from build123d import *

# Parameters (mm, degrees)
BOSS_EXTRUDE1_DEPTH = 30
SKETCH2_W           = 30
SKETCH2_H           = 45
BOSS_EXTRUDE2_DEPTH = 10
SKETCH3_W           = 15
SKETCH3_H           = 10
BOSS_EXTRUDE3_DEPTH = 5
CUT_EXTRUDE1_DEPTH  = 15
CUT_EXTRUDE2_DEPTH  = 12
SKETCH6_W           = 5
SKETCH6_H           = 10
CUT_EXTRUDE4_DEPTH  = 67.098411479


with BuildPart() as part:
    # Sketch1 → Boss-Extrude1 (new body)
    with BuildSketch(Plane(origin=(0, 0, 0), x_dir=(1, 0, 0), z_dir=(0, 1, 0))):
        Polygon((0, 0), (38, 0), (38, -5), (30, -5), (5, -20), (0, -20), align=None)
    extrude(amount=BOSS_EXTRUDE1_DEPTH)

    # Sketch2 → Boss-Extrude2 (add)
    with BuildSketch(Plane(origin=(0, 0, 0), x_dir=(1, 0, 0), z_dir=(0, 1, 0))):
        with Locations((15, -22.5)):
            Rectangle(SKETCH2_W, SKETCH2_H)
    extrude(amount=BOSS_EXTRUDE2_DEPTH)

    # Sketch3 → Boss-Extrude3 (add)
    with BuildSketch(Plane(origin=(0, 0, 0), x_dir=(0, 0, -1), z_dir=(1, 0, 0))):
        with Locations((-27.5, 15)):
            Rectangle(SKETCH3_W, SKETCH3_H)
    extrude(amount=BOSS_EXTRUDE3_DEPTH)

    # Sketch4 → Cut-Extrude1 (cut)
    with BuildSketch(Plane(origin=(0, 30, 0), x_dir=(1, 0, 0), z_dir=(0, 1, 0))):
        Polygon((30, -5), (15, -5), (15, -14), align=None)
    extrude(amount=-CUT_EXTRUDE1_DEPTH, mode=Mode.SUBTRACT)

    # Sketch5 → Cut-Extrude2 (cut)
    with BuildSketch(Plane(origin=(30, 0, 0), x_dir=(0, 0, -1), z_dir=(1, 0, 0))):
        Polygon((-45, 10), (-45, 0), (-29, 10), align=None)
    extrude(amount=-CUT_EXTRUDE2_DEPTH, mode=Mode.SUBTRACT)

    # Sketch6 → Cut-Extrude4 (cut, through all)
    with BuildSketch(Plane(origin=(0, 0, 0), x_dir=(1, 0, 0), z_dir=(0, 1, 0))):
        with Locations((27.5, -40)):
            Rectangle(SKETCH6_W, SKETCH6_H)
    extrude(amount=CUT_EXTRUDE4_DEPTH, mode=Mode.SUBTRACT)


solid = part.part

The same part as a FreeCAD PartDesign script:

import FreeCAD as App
import Part
import Sketcher
from FreeCAD import Vector
Q = App.Units.Quantity

doc = App.newDocument("Part")
body = doc.addObject("PartDesign::Body", "Body")

# Sketch on XZ plane
sketch1 = body.newObject("Sketcher::SketchObject", "Sketch")
sketch1.AttachmentSupport = (doc.getObject("XZ_Plane"), [""])
sketch1.MapMode = "FlatFace"
sketch1.addGeometry([
    Part.LineSegment(Vector(38, 0, 0), Vector(0, 0, 0)),  # 0
    Part.LineSegment(Vector(0, 0, 0), Vector(0, 20, 0)),  # 1
    Part.LineSegment(Vector(0, 20, 0), Vector(5, 20, 0)),  # 2
    Part.LineSegment(Vector(5, 20, 0), Vector(30, 5, 0)),  # 3
    Part.LineSegment(Vector(30, 5, 0), Vector(38, 5, 0)),  # 4
    Part.LineSegment(Vector(38, 5, 0), Vector(38, 0, 0)),  # 5
], False)
sketch1.addConstraint([
    Sketcher.Constraint("Coincident", 0, 2, 1, 1),
    Sketcher.Constraint("Coincident", 1, 2, 2, 1),
    Sketcher.Constraint("Coincident", 2, 2, 3, 1),
    Sketcher.Constraint("Coincident", 3, 2, 4, 1),
    Sketcher.Constraint("Coincident", 4, 2, 5, 1),
    Sketcher.Constraint("Coincident", 5, 2, 0, 1),
    Sketcher.Constraint("Horizontal", 0),
    Sketcher.Constraint("Vertical", 1),
    Sketcher.Constraint("Horizontal", 2),
    Sketcher.Constraint("Horizontal", 4),
    Sketcher.Constraint("Vertical", 5),
    Sketcher.Constraint("Coincident", 0, 2, -1, 1),
    Sketcher.Constraint("Equal", 2, 5),
    Sketcher.Constraint("DistanceX", 0, 2, 0, 1, Q("38 mm")),
    Sketcher.Constraint("DistanceX", 2, 1, 2, 2, Q("5 mm")),
    Sketcher.Constraint("DistanceX", 4, 1, 4, 2, Q("8 mm")),
    Sketcher.Constraint("DistanceY", 1, 1, 1, 2, Q("20 mm")),
])
pad1 = body.newObject("PartDesign::Pad", "Pad")
pad1.Profile = sketch1
pad1.Length = 30
pad1.Reversed = True

# Sketch on XZ plane
sketch2 = body.newObject("Sketcher::SketchObject", "Sketch001")
sketch2.AttachmentSupport = (doc.getObject("XZ_Plane"), [""])
sketch2.MapMode = "FlatFace"
sketch2.addGeometry([
    Part.LineSegment(Vector(0, 0, 0), Vector(0, 45, 0)),
    Part.LineSegment(Vector(0, 45, 0), Vector(30, 45, 0)),
    Part.LineSegment(Vector(30, 45, 0), Vector(30, 0, 0)),
    Part.LineSegment(Vector(30, 0, 0), Vector(0, 0, 0)),
], False)
sketch2.addConstraint([
    Sketcher.Constraint("Coincident", 0, 2, 1, 1),
    Sketcher.Constraint("Coincident", 1, 2, 2, 1),
    Sketcher.Constraint("Coincident", 2, 2, 3, 1),
    Sketcher.Constraint("Coincident", 3, 2, 0, 1),
    Sketcher.Constraint("Vertical", 0),
    Sketcher.Constraint("Horizontal", 1),
    Sketcher.Constraint("Vertical", 2),
    Sketcher.Constraint("Horizontal", 3),
    Sketcher.Constraint("Coincident", 3, 2, -1, 1),
    Sketcher.Constraint("DistanceX", 1, 1, 1, 2, Q("30 mm")),
    Sketcher.Constraint("DistanceY", 0, 1, 0, 2, Q("45 mm")),
])
pad2 = body.newObject("PartDesign::Pad", "Pad001")
pad2.Profile = sketch2
pad2.Length = 10
pad2.Reversed = True

# Sketch on YZ plane
sketch3 = body.newObject("Sketcher::SketchObject", "Sketch002")
sketch3.AttachmentSupport = (doc.getObject("YZ_Plane"), [""])
sketch3.MapMode = "FlatFace"
sketch3.addGeometry([
    Part.LineSegment(Vector(20, 35, 0), Vector(10, 35, 0)),
    Part.LineSegment(Vector(10, 35, 0), Vector(10, 20, 0)),
    Part.LineSegment(Vector(10, 20, 0), Vector(20, 20, 0)),
    Part.LineSegment(Vector(20, 20, 0), Vector(20, 35, 0)),
], False)
sketch3.addConstraint([
    Sketcher.Constraint("Coincident", 0, 2, 1, 1),
    Sketcher.Constraint("Coincident", 1, 2, 2, 1),
    Sketcher.Constraint("Coincident", 2, 2, 3, 1),
    Sketcher.Constraint("Coincident", 3, 2, 0, 1),
    Sketcher.Constraint("Horizontal", 0),
    Sketcher.Constraint("Vertical", 1),
    Sketcher.Constraint("Horizontal", 2),
    Sketcher.Constraint("Vertical", 3),
    Sketcher.Constraint("DistanceX", 0, 2, 0, 1, Q("10 mm")),
    Sketcher.Constraint("DistanceY", 1, 2, 1, 1, Q("15 mm")),
    Sketcher.Constraint("DistanceX", -1, 1, 0, 2, Q("10 mm")),
    Sketcher.Constraint("DistanceY", -1, 1, 0, 2, Q("35 mm")),
])
pad3 = body.newObject("PartDesign::Pad", "Pad002")
pad3.Profile = sketch3
pad3.Length = 5

# Sketch on XZ plane
sketch4 = body.newObject("Sketcher::SketchObject", "Sketch003")
sketch4.AttachmentSupport = (doc.getObject("XZ_Plane"), [""])
sketch4.MapMode = "FlatFace"
sketch4.AttachmentOffset = App.Placement(Vector(0, 0, -30), App.Rotation())
sketch4.addGeometry([
    Part.LineSegment(Vector(30, 5, 0), Vector(15, 5, 0)),
    Part.LineSegment(Vector(15, 5, 0), Vector(15, 14, 0)),
    Part.LineSegment(Vector(15, 14, 0), Vector(30, 5, 0)),
], False)
sketch4.addConstraint([
    Sketcher.Constraint("Coincident", 0, 2, 1, 1),
    Sketcher.Constraint("Coincident", 1, 2, 2, 1),
    Sketcher.Constraint("Coincident", 2, 2, 0, 1),
    Sketcher.Constraint("Horizontal", 0),
    Sketcher.Constraint("Vertical", 1),
    Sketcher.Constraint("DistanceX", 0, 2, 0, 1, Q("15 mm")),
    Sketcher.Constraint("DistanceY", 1, 1, 1, 2, Q("9 mm")),
    Sketcher.Constraint("DistanceX", -1, 1, 0, 2, Q("15 mm")),
    Sketcher.Constraint("DistanceY", -1, 1, 0, 2, Q("5 mm")),
])
pocket1 = body.newObject("PartDesign::Pocket", "Pocket")
pocket1.Profile = sketch4
pocket1.Length = 15
pocket1.Reversed = True

# Sketch on YZ plane
sketch5 = body.newObject("Sketcher::SketchObject", "Sketch004")
sketch5.AttachmentSupport = (doc.getObject("YZ_Plane"), [""])
sketch5.MapMode = "FlatFace"
sketch5.AttachmentOffset = App.Placement(Vector(0, 0, 30), App.Rotation())
sketch5.addGeometry([
    Part.LineSegment(Vector(10, 45, 0), Vector(0, 45, 0)),
    Part.LineSegment(Vector(0, 45, 0), Vector(10, 29, 0)),
    Part.LineSegment(Vector(10, 29, 0), Vector(10, 45, 0)),
], False)
sketch5.addConstraint([
    Sketcher.Constraint("Coincident", 0, 2, 1, 1),
    Sketcher.Constraint("Coincident", 1, 2, 2, 1),
    Sketcher.Constraint("Coincident", 2, 2, 0, 1),
    Sketcher.Constraint("Horizontal", 0),
    Sketcher.Constraint("Vertical", 2),
    Sketcher.Constraint("PointOnObject", 0, 2, -2),
    Sketcher.Constraint("DistanceX", 0, 2, 0, 1, Q("10 mm")),
    Sketcher.Constraint("DistanceY", 2, 1, 2, 2, Q("16 mm")),
    Sketcher.Constraint("DistanceY", -1, 1, 0, 2, Q("45 mm")),
])
pocket2 = body.newObject("PartDesign::Pocket", "Pocket001")
pocket2.Profile = sketch5
pocket2.Length = 12

# Sketch on XZ plane
sketch6 = body.newObject("Sketcher::SketchObject", "Sketch005")
sketch6.AttachmentSupport = (doc.getObject("XZ_Plane"), [""])
sketch6.MapMode = "FlatFace"
sketch6.addGeometry([
    Part.LineSegment(Vector(25, 35, 0), Vector(25, 45, 0)),
    Part.LineSegment(Vector(25, 45, 0), Vector(30, 45, 0)),
    Part.LineSegment(Vector(30, 45, 0), Vector(30, 35, 0)),
    Part.LineSegment(Vector(30, 35, 0), Vector(25, 35, 0)),
], False)
sketch6.addConstraint([
    Sketcher.Constraint("Coincident", 0, 2, 1, 1),
    Sketcher.Constraint("Coincident", 1, 2, 2, 1),
    Sketcher.Constraint("Coincident", 2, 2, 3, 1),
    Sketcher.Constraint("Coincident", 3, 2, 0, 1),
    Sketcher.Constraint("Vertical", 0),
    Sketcher.Constraint("Horizontal", 1),
    Sketcher.Constraint("Vertical", 2),
    Sketcher.Constraint("Horizontal", 3),
    Sketcher.Constraint("DistanceX", 1, 1, 1, 2, Q("5 mm")),
    Sketcher.Constraint("DistanceY", 0, 1, 0, 2, Q("10 mm")),
    Sketcher.Constraint("DistanceX", -1, 1, 0, 2, Q("25 mm")),
    Sketcher.Constraint("DistanceY", -1, 1, 0, 2, Q("45 mm")),
])
pocket3 = body.newObject("PartDesign::Pocket", "Pocket002")
pocket3.Profile = sketch6
pocket3.Type = "ThroughAll"

doc.recompute()
